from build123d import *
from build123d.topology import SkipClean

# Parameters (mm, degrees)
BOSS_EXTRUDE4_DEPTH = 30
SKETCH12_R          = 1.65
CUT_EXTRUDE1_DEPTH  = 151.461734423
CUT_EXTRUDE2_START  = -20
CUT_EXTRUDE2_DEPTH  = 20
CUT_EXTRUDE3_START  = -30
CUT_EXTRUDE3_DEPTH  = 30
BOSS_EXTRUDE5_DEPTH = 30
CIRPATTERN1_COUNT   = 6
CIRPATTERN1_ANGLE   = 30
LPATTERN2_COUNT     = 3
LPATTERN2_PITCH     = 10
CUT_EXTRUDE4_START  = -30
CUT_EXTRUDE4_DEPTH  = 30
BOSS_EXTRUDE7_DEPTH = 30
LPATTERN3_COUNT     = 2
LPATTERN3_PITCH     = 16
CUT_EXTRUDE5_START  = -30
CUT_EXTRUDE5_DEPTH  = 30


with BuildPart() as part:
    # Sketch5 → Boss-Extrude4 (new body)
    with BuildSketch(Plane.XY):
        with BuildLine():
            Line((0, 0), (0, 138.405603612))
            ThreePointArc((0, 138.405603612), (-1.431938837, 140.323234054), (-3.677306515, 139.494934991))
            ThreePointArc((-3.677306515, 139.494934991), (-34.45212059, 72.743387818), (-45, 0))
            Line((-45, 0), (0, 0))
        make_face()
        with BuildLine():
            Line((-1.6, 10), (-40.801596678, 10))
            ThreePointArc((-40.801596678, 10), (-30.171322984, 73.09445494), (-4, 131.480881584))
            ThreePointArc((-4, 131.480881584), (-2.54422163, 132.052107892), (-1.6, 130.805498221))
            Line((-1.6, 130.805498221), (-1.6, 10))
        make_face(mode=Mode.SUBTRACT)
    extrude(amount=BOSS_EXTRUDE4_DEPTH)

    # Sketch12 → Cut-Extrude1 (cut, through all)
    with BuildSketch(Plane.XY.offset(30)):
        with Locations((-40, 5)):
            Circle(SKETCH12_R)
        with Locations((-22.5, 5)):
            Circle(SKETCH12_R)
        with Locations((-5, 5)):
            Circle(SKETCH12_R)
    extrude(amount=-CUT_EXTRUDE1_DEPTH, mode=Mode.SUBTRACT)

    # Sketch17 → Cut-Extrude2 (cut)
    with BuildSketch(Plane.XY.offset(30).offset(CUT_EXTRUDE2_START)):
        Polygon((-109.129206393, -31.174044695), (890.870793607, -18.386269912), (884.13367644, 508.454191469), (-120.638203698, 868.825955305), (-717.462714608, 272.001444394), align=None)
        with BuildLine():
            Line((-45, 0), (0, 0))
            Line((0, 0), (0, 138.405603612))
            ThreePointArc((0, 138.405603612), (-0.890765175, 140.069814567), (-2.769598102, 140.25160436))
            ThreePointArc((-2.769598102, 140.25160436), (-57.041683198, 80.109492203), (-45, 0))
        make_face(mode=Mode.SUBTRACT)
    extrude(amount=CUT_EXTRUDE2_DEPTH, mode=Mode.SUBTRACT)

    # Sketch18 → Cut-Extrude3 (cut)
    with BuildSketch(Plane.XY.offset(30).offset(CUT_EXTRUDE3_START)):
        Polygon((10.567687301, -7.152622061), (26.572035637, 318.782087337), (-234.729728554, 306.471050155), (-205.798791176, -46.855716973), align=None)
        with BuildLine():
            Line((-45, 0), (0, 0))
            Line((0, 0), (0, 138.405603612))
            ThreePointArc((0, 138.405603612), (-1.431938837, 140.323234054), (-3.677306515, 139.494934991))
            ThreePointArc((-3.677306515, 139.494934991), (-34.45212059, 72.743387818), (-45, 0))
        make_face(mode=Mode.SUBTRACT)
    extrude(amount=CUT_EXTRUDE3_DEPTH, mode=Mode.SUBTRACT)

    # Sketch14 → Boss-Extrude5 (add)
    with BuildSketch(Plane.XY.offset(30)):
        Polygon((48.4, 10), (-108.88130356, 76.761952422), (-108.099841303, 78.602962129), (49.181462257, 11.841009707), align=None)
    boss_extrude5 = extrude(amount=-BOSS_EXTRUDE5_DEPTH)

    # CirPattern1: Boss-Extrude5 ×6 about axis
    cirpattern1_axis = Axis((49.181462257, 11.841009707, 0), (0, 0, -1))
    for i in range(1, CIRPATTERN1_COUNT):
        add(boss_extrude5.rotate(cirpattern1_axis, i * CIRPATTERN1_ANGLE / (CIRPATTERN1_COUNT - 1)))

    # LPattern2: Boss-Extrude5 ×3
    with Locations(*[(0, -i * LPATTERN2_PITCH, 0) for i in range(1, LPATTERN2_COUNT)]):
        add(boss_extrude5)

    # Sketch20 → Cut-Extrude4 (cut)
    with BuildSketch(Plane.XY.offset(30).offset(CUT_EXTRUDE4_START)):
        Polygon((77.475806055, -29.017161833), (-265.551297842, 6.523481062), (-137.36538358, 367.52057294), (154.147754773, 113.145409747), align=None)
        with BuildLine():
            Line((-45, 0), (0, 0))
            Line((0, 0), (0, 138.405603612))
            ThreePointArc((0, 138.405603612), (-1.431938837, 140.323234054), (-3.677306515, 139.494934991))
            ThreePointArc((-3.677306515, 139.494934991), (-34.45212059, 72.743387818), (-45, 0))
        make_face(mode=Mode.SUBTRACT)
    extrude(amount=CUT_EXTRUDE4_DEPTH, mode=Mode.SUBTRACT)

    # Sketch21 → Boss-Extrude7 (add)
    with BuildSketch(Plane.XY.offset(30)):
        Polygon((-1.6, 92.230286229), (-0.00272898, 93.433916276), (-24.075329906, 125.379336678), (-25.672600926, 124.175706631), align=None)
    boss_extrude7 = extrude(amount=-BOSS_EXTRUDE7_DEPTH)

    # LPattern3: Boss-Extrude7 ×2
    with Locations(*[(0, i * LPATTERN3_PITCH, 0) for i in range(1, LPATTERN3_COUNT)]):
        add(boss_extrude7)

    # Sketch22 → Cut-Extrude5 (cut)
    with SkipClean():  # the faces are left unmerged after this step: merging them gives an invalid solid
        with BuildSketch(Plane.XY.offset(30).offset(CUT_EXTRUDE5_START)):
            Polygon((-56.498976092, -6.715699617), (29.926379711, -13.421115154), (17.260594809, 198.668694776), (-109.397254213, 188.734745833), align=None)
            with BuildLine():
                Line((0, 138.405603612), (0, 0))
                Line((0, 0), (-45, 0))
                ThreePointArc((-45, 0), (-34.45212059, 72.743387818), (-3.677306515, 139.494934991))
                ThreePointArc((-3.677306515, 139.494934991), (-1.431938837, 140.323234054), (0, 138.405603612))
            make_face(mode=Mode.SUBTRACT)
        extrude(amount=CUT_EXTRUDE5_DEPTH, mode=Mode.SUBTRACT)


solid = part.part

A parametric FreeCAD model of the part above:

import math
import FreeCAD as App
import Part
import Sketcher
from FreeCAD import Vector
Q = App.Units.Quantity

doc = App.newDocument("Part")
params = doc.addObject("Spreadsheet::Sheet", "Params")
for row, (alias, value) in enumerate([
    ("sketch1_radius", "2 mm"),
    ("sketch1_width", "45 mm"),
    ("pad1_length", "30 mm"),
    ("sketch2_diameter", "3.3 mm"),
    ("sketch3_radius", "2 mm"),
    ("sketch3_width", "45 mm"),
    ("pocket2_length", "20 mm"),
    ("sketch4_radius", "2 mm"),
    ("sketch4_width", "45 mm"),
    ("pocket3_length", "30 mm"),
    ("sketch5_length", "2 mm"),
    ("pad2_length", "30 mm"),
    ("linearpattern_pitch", "10 mm"),
    ("sketch6_radius", "2 mm"),
    ("sketch6_width", "45 mm"),
    ("pocket4_length", "30 mm"),
    ("sketch7_length", "2 mm"),
    ("sketch7_length2", "40 mm"),
    ("pad3_length", "30 mm"),
    ("linearpattern2_pitch", "16 mm"),
    ("sketch8_radius", "2 mm"),
    ("sketch8_width", "45 mm"),
    ("pocket5_length", "30 mm"),
], start=1):
    params.set(f"A{row}", alias)
    params.set(f"B{row}", "=" + value)
    params.setAlias(f"B{row}", alias)

body = doc.addObject("PartDesign::Body", "Body")

sketch1 = doc.addObject("Sketcher::SketchObject", "Sketch")
body.addObject(sketch1)
sketch1.AttachmentSupport = (doc.XY_Plane, [""])
sketch1.MapMode = "FlatFace"
sketch1.addGeometry([
    Part.LineSegment(Vector(0, 0, 0), Vector(0, 138.4, 0)),
    Part.ArcOfCircle(Part.Circle(Vector(-2, 138.4, 0), Vector(0, 0, 1), 2), math.radians(0), math.radians(147)),
    Part.ArcOfCircle(Part.Circle(Vector(211.1, 0, 0), Vector(0, 0, 1), 256.1), math.radians(147), math.radians(180)),
    Part.LineSegment(Vector(-45, 0, 0), Vector(0, 0, 0)),
    Part.LineSegment(Vector(-1.6, 130.8, 0), Vector(-1.6, 10, 0)),
    Part.LineSegment(Vector(-1.6, 10, 0), Vector(-40.8, 10, 0)),
    Part.ArcOfCircle(Part.Circle(Vector(211.1, 0, 0), Vector(0, 0, 1), 252.1), math.radians(149), math.radians(178)),
    Part.ArcOfCircle(Part.Circle(Vector(-2.9, 130.8, 0), Vector(0, 0, 1), 1.3), math.radians(0), math.radians(149)),
], False)
sketch1.addConstraint([
    Sketcher.Constraint("Tangent", 0, 2, 1, 1),
    Sketcher.Constraint("Tangent", 1, 2, 2, 1),
    Sketcher.Constraint("Coincident", 2, 2, 3, 1),
    Sketcher.Constraint("Coincident", 3, 2, 0, 1),
    Sketcher.Constraint("Coincident", 4, 2, 5, 1),
    Sketcher.Constraint("Coincident", 5, 2, 6, 2),
    Sketcher.Constraint("Tangent", 6, 1, 7, 2),
    Sketcher.Constraint("Tangent", 7, 1, 4, 1),
    Sketcher.Constraint("Vertical", 0),
    Sketcher.Constraint("Horizontal", 3),
    Sketcher.Constraint("Vertical", 4),
    Sketcher.Constraint("Horizontal", 5),
    Sketcher.Constraint("Coincident", 3, 2, -1, 1),
    Sketcher.Constraint("Coincident", 6, 3, 2, 3),
    Sketcher.Constraint("PointOnObject", 2, 3, -1),
    Sketcher.Constraint("Radius", 1, Q("2 mm")),
    Sketcher.Constraint("DistanceX", 3, 1, 3, 2, Q("45 mm")),
    Sketcher.Constraint("DistanceY", -1, 1, 4, 2, Q("10 mm")),
    Sketcher.Constraint("DistanceX", 6, 1, -1, 1, Q("4 mm")),
    Sketcher.Constraint("DistanceX", 4, 2, -1, 1, Q("1.6 mm")),
    Sketcher.Constraint("Radius", 2, Q("256.111111 mm")),
    Sketcher.Constraint("Radius", 6, Q("252.111111 mm")),
])
sketch1.setExpression("Constraints[15]", "Params.sketch1_radius")
sketch1.setExpression("Constraints[16]", "Params.sketch1_width")
pad1 = doc.addObject("PartDesign::Pad", "Pad")
body.addObject(pad1)
pad1.Profile = sketch1
pad1.setExpression("Length", "Params.pad1_length")

sketch2 = doc.addObject("Sketcher::SketchObject", "Sketch001")
body.addObject(sketch2)
sketch2.AttachmentSupport = (doc.XY_Plane, [""])
sketch2.MapMode = "FlatFace"
sketch2.AttachmentOffset = App.Placement(Vector(0, 0, 30), App.Rotation())
sketch2.addGeometry([
    Part.Circle(Vector(-40, 5, 0), Vector(0, 0, 1), 1.6),
    Part.Circle(Vector(-22.5, 5, 0), Vector(0, 0, 1), 1.6),
    Part.Circle(Vector(-5, 5, 0), Vector(0, 0, 1), 1.6),
], False)
sketch2.addConstraint([
    Sketcher.Constraint("Equal", 0, 1),
    Sketcher.Constraint("Equal", 1, 2),
    Sketcher.Constraint("Horizontal", 0, 3, 1, 3),
    Sketcher.Constraint("Horizontal", 1, 3, 2, 3),
    Sketcher.Constraint("Diameter", 0, Q("3.3 mm")),
    Sketcher.Constraint("DistanceX", 0, 3, -1, 1, Q("40 mm")),
    Sketcher.Constraint("DistanceY", -1, 1, 0, 3, Q("5 mm")),
    Sketcher.Constraint("DistanceX", 2, 3, -1, 1, Q("5 mm")),
    Sketcher.Constraint("DistanceX", 1, 3, -1, 1, Q("22.5 mm")),
])
sketch2.setExpression("Constraints[4]", "Params.sketch2_diameter")
pocket1 = doc.addObject("PartDesign::Pocket", "Pocket")
body.addObject(pocket1)
pocket1.Profile = sketch2
pocket1.Type = "ThroughAll"

sketch3 = doc.addObject("Sketcher::SketchObject", "Sketch002")
body.addObject(sketch3)
sketch3.AttachmentSupport = (doc.XY_Plane, [""])
sketch3.MapMode = "FlatFace"
sketch3.AttachmentOffset = App.Placement(Vector(0, 0, 10), App.Rotation())
sketch3.addGeometry([
    Part.LineSegment(Vector(-109.129206, -31.174045, 0), Vector(890.870794, -18.38627, 0)),
    Part.LineSegment(Vector(890.870794, -18.38627, 0), Vector(884.133676, 508.454191, 0)),
    Part.LineSegment(Vector(884.133676, 508.454191, 0), Vector(-120.638204, 868.825955, 0)),
    Part.LineSegment(Vector(-120.638204, 868.825955, 0), Vector(-717.462715, 272.001444, 0)),
    Part.LineSegment(Vector(-717.462715, 272.001444, 0), Vector(-109.129206, -31.174045, 0)),
    Part.LineSegment(Vector(0, 0, 0), Vector(-45, 0, 0)),
    Part.ArcOfCircle(Part.Circle(Vector(33.693729, 52.788643, 0), Vector(0, 0, 1), 94.7594), math.radians(112.631266), math.radians(213.854156)),
    Part.ArcOfCircle(Part.Circle(Vector(-2, 138.405604, 0), Vector(0, 0, 1), 2), math.radians(0), math.radians(112.631266)),
    Part.LineSegment(Vector(0, 138.405604, 0), Vector(0, 0, 0)),
], False)
sketch3.addConstraint([
    Sketcher.Constraint("Coincident", 0, 2, 1, 1),
    Sketcher.Constraint("Coincident", 1, 2, 2, 1),
    Sketcher.Constraint("Coincident", 2, 2, 3, 1),
    Sketcher.Constraint("Coincident", 3, 2, 4, 1),
    Sketcher.Constraint("Coincident", 4, 2, 0, 1),
    Sketcher.Constraint("Coincident", 5, 2, 6, 2),
    Sketcher.Constraint("Coincident", 6, 1, 7, 2),
    Sketcher.Constraint("Coincident", 7, 1, 8, 1),
    Sketcher.Constraint("Coincident", 8, 2, 5, 1),
    Sketcher.Constraint("Horizontal", 5),
    Sketcher.Constraint("Vertical", 8),
    Sketcher.Constraint("Coincident", 8, 2, -1, 1),
    Sketcher.Constraint("Radius", 7, Q("2 mm")),
    Sketcher.Constraint("DistanceX", 5, 2, 5, 1, Q("45 mm")),
    Sketcher.Constraint("DistanceY", 4, 2, 2, 2, Q("900 mm")),
    Sketcher.Constraint("DistanceX", 4, 2, 0, 2, Q("1000 mm")),
    Sketcher.Constraint("Radius", 6, Q("94.7594 mm")),
    Sketcher.Constraint("DistanceY", 7, 3, 6, 1, Q("1.846001 mm")),
    Sketcher.Constraint("DistanceY", 7, 1, 6, 1, Q("1.846001 mm")),
    Sketcher.Constraint("DistanceY", 6, 3, 3, 2, Q("219.212801 mm")),
    Sketcher.Constraint("Distance", 0, Q("1000.08176 mm")),
    Sketcher.Constraint("Distance", 4, Q("679.69481 mm")),
    Sketcher.Constraint("DistanceY", 8, 2, 8, 1, Q("138.405604 mm")),
    Sketcher.Constraint("DistanceY", 0, 2, -1, 1, Q("18.38627 mm")),
    Sketcher.Constraint("DistanceY", -1, 1, 1, 2, Q("508.454191 mm")),
    Sketcher.Constraint("DistanceX", 2, 2, 1, 2, Q("1004.77188 mm")),
    Sketcher.Constraint("DistanceX", 3, 2, 2, 2, Q("596.824511 mm")),
    Sketcher.Constraint("DistanceX", 4, 2, 6, 1, Q("106.359608 mm")),
])
sketch3.setExpression("Constraints[12]", "Params.sketch3_radius")
sketch3.setExpression("Constraints[13]", "Params.sketch3_width")
pocket2 = doc.addObject("PartDesign::Pocket", "Pocket001")
body.addObject(pocket2)
pocket2.Profile = sketch3
pocket2.setExpression("Length", "Params.pocket2_length")
pocket2.Reversed = True

sketch4 = doc.addObject("Sketcher::SketchObject", "Sketch003")
body.addObject(sketch4)
sketch4.AttachmentSupport = (doc.XY_Plane, [""])
sketch4.MapMode = "FlatFace"
sketch4.addGeometry([
    Part.LineSegment(Vector(10.6, -7.2, 0), Vector(26.6, 318.8, 0)),
    Part.LineSegment(Vector(26.6, 318.8, 0), Vector(-234.7, 306.5, 0)),
    Part.LineSegment(Vector(-234.7, 306.5, 0), Vector(-205.8, -46.9, 0)),
    Part.LineSegment(Vector(-205.8, -46.9, 0), Vector(10.6, -7.2, 0)),
    Part.LineSegment(Vector(0, 0, 0), Vector(-45, 0, 0)),
    Part.ArcOfCircle(Part.Circle(Vector(211.1, 0, 0), Vector(0, 0, 1), 256.1), math.radians(147), math.radians(180)),
    Part.ArcOfCircle(Part.Circle(Vector(-2, 138.4, 0), Vector(0, 0, 1), 2), math.radians(0), math.radians(147)),
    Part.LineSegment(Vector(0, 138.4, 0), Vector(0, 0, 0)),
], False)
sketch4.addConstraint([
    Sketcher.Constraint("Coincident", 0, 2, 1, 1),
    Sketcher.Constraint("Coincident", 1, 2, 2, 1),
    Sketcher.Constraint("Coincident", 2, 2, 3, 1),
    Sketcher.Constraint("Coincident", 3, 2, 0, 1),
    Sketcher.Constraint("Coincident", 4, 2, 5, 2),
    Sketcher.Constraint("Tangent", 5, 1, 6, 2),
    Sketcher.Constraint("Tangent", 6, 1, 7, 1),
    Sketcher.Constraint("Coincident", 7, 2, 4, 1),
    Sketcher.Constraint("Horizontal", 4),
    Sketcher.Constraint("Vertical", 7),
    Sketcher.Constraint("Coincident", 7, 2, -1, 1),
    Sketcher.Constraint("PointOnObject", 5, 3, -1),
    Sketcher.Constraint("Radius", 6, Q("2 mm")),
    Sketcher.Constraint("DistanceX", 4, 2, 4, 1, Q("45 mm")),
    Sketcher.Constraint("Radius", 5, Q("256.111111 mm")),
    Sketcher.Constraint("DistanceX", 1, 2, -1, 1, Q("234.729729 mm")),
    Sketcher.Constraint("DistanceY", -1, 1, 1, 2, Q("306.47105 mm")),
    Sketcher.Constraint("DistanceX", 2, 2, -1, 1, Q("205.798791 mm")),
    Sketcher.Constraint("DistanceY", 2, 2, 6, 3, Q("185.261321 mm")),
    Sketcher.Constraint("DistanceX", 2, 2, 3, 2, Q("216.366478 mm")),
    Sketcher.Constraint("DistanceX", 3, 2, 0, 2, Q("16.004348 mm")),
    Sketcher.Constraint("DistanceY", 3, 2, 0, 2, Q("325.934709 mm")),
    Sketcher.Constraint("Distance", 1, Q("261.591616 mm")),
])
sketch4.setExpression("Constraints[12]", "Params.sketch4_radius")
sketch4.setExpression("Constraints[13]", "Params.sketch4_width")
pocket3 = doc.addObject("PartDesign::Pocket", "Pocket002")
body.addObject(pocket3)
pocket3.Profile = sketch4
pocket3.setExpression("Length", "Params.pocket3_length")
pocket3.Reversed = True

sketch5 = doc.addObject("Sketcher::SketchObject", "Sketch004")
body.addObject(sketch5)
sketch5.AttachmentSupport = (doc.XY_Plane, [""])
sketch5.MapMode = "FlatFace"
sketch5.AttachmentOffset = App.Placement(Vector(0, 0, 30), App.Rotation())
sketch5.addGeometry([
    Part.LineSegment(Vector(-108.9, 76.8, 0), Vector(48.4, 10, 0)),
    Part.LineSegment(Vector(48.4, 10, 0), Vector(49.2, 11.8, 0)),
    Part.LineSegment(Vector(49.2, 11.8, 0), Vector(-108.1, 78.6, 0)),
    Part.LineSegment(Vector(-108.1, 78.6, 0), Vector(-108.9, 76.8, 0)),
], False)
sketch5.addConstraint([
    Sketcher.Constraint("Coincident", 0, 2, 1, 1),
    Sketcher.Constraint("Coincident", 1, 2, 2, 1),
    Sketcher.Constraint("Coincident", 2, 2, 3, 1),
    Sketcher.Constraint("Coincident", 3, 2, 0, 1),
    Sketcher.Constraint("Perpendicular", 0, 1),
    Sketcher.Constraint("Perpendicular", 1, 2),
    Sketcher.Constraint("Perpendicular", 2, 3),
    Sketcher.Constraint("Angle", 0, Q("-23 deg")),
    Sketcher.Constraint("Distance", 1, Q("2 mm")),
    Sketcher.Constraint("DistanceY", -1, 1, 0, 2, Q("10 mm")),
    Sketcher.Constraint("DistanceX", -1, 1, 0, 2, Q("48.4 mm")),
    Sketcher.Constraint("DistanceX", 2, 2, -1, 1, Q("108.099841 mm")),
])
sketch5.setExpression("Constraints[8]", "Params.sketch5_length")
pad2 = doc.addObject("PartDesign::Pad", "Pad001")
body.addObject(pad2)
pad2.Profile = sketch5
pad2.setExpression("Length", "Params.pad2_length")
pad2.Reversed = True
doc.recompute()

datumline = doc.addObject("PartDesign::Line", "DatumLine")
body.addObject(datumline)
datumline.Placement = App.Placement(Vector(49.181462, 11.84101, 0), App.Rotation(Vector(0, 0, 1), Vector(0, 0, -1)))
polarpattern = doc.addObject("PartDesign::PolarPattern", "PolarPattern")
body.addObject(polarpattern)
polarpattern.Originals = [pad2]
polarpattern.Axis = (datumline, [""])
polarpattern.Angle = 30
polarpattern.Occurrences = 6
body.Tip = polarpattern
doc.recompute()

linearpattern = doc.addObject("PartDesign::LinearPattern", "LinearPattern")
body.addObject(linearpattern)
linearpattern.Originals = [pad2]
linearpattern.Direction = (doc.Y_Axis, [""])
linearpattern.Mode = "offset"
linearpattern.setExpression("Offset", "Params.linearpattern_pitch")
linearpattern.Occurrences = 3
linearpattern.Reversed = True
body.Tip = linearpattern

sketch6 = doc.addObject("Sketcher::SketchObject", "Sketch005")
body.addObject(sketch6)
sketch6.AttachmentSupport = (doc.XY_Plane, [""])
sketch6.MapMode = "FlatFace"
sketch6.addGeometry([
    Part.LineSegment(Vector(-265.6, 6.5, 0), Vector(77.5, -29, 0)),
    Part.LineSegment(Vector(77.5, -29, 0), Vector(154.1, 113.1, 0)),
    Part.LineSegment(Vector(154.1, 113.1, 0), Vector(-137.4, 367.5, 0)),
    Part.LineSegment(Vector(-137.4, 367.5, 0), Vector(-265.6, 6.5, 0)),
    Part.ArcOfCircle(Part.Circle(Vector(211.1, 0, 0), Vector(0, 0, 1), 256.1), math.radians(147), math.radians(180)),
    Part.ArcOfCircle(Part.Circle(Vector(-2, 138.4, 0), Vector(0, 0, 1), 2), math.radians(0), math.radians(147)),
    Part.LineSegment(Vector(0, 138.4, 0), Vector(0, 0, 0)),
    Part.LineSegment(Vector(0, 0, 0), Vector(-45, 0, 0)),
], False)
sketch6.addConstraint([
    Sketcher.Constraint("Coincident", 0, 2, 1, 1),
    Sketcher.Constraint("Coincident", 1, 2, 2, 1),
    Sketcher.Constraint("Coincident", 2, 2, 3, 1),
    Sketcher.Constraint("Coincident", 3, 2, 0, 1),
    Sketcher.Constraint("Tangent", 4, 1, 5, 2),
    Sketcher.Constraint("Tangent", 5, 1, 6, 1),
    Sketcher.Constraint("Coincident", 6, 2, 7, 1),
    Sketcher.Constraint("Coincident", 7, 2, 4, 2),
    Sketcher.Constraint("Vertical", 6),
    Sketcher.Constraint("Horizontal", 7),
    Sketcher.Constraint("Coincident", 6, 2, -1, 1),
    Sketcher.Constraint("PointOnObject", 4, 3, -1),
    Sketcher.Constraint("Radius", 5, Q("2 mm")),
    Sketcher.Constraint("DistanceX", 7, 2, 7, 1, Q("45 mm")),
    Sketcher.Constraint("Radius", 4, Q("256.111111 mm")),
    Sketcher.Constraint("Distance", 0, Q("344.863352 mm")),
    Sketcher.Constraint("Distance", 1, Q("161.520229 mm")),
    Sketcher.Constraint("Distance", 2, Q("386.893569 mm")),
    Sketcher.Constraint("DistanceY", 0, 2, -1, 1, Q("29.017162 mm")),
    Sketcher.Constraint("DistanceY", -1, 1, 1, 2, Q("113.14541 mm")),
    Sketcher.Constraint("DistanceY", -1, 1, 3, 2, Q("6.523481 mm")),
    Sketcher.Constraint("DistanceY", 5, 3, 2, 2, Q("229.114969 mm")),
    Sketcher.Constraint("DistanceX", 3, 2, 4, 3, Q("476.662409 mm")),
])
sketch6.setExpression("Constraints[12]", "Params.sketch6_radius")
sketch6.setExpression("Constraints[13]", "Params.sketch6_width")
pocket4 = doc.addObject("PartDesign::Pocket", "Pocket003")
body.addObject(pocket4)
pocket4.Profile = sketch6
pocket4.setExpression("Length", "Params.pocket4_length")
pocket4.Reversed = True

sketch7 = doc.addObject("Sketcher::SketchObject", "Sketch006")
body.addObject(sketch7)
sketch7.AttachmentSupport = (doc.XY_Plane, [""])
sketch7.MapMode = "FlatFace"
sketch7.AttachmentOffset = App.Placement(Vector(0, 0, 30), App.Rotation())
sketch7.addGeometry([
    Part.LineSegment(Vector(-1.6, 92.2, 0), Vector(0, 93.4, 0)),
    Part.LineSegment(Vector(0, 93.4, 0), Vector(-24.1, 125.4, 0)),
    Part.LineSegment(Vector(-24.1, 125.4, 0), Vector(-25.7, 124.2, 0)),
    Part.LineSegment(Vector(-25.7, 124.2, 0), Vector(-1.6, 92.2, 0)),
], False)
sketch7.addConstraint([
    Sketcher.Constraint("Coincident", 0, 2, 1, 1),
    Sketcher.Constraint("Coincident", 1, 2, 2, 1),
    Sketcher.Constraint("Coincident", 2, 2, 3, 1),
    Sketcher.Constraint("Coincident", 3, 2, 0, 1),
    Sketcher.Constraint("Perpendicular", 0, 1),
    Sketcher.Constraint("Perpendicular", 1, 2),
    Sketcher.Constraint("Perpendicular", 2, 3),
    Sketcher.Constraint("Angle", 0, Q("37 deg")),
    Sketcher.Constraint("Distance", 0, Q("2 mm")),
    Sketcher.Constraint("Distance", 1, Q("40 mm")),
    Sketcher.Constraint("DistanceX", 3, 2, -1, 1, Q("1.6 mm")),
    Sketcher.Constraint("DistanceY", -1, 1, 0, 2, Q("93.433916 mm")),
])
sketch7.setExpression("Constraints[8]", "Params.sketch7_length")
sketch7.setExpression("Constraints[9]", "Params.sketch7_length2")
pad3 = doc.addObject("PartDesign::Pad", "Pad002")
body.addObject(pad3)
pad3.Profile = sketch7
pad3.setExpression("Length", "Params.pad3_length")
pad3.Reversed = True
doc.recompute()

linearpattern2 = doc.addObject("PartDesign::LinearPattern", "LinearPattern001")
body.addObject(linearpattern2)
linearpattern2.Originals = [pad3]
linearpattern2.Direction = (doc.Y_Axis, [""])
linearpattern2.Mode = "offset"
linearpattern2.setExpression("Offset", "Params.linearpattern2_pitch")
linearpattern2.Occurrences = 2
body.Tip = linearpattern2

sketch8 = doc.addObject("Sketcher::SketchObject", "Sketch007")
body.addObject(sketch8)
sketch8.AttachmentSupport = (doc.XY_Plane, [""])
sketch8.MapMode = "FlatFace"
sketch8.addGeometry([
    Part.LineSegment(Vector(-56.5, -6.7, 0), Vector(29.9, -13.4, 0)),
    Part.LineSegment(Vector(29.9, -13.4, 0), Vector(17.3, 198.7, 0)),
    Part.LineSegment(Vector(17.3, 198.7, 0), Vector(-109.4, 188.7, 0)),
    Part.LineSegment(Vector(-109.4, 188.7, 0), Vector(-56.5, -6.7, 0)),
    Part.ArcOfCircle(Part.Circle(Vector(-2, 138.4, 0), Vector(0, 0, 1), 2), math.radians(0), math.radians(147)),
    Part.LineSegment(Vector(0, 138.4, 0), Vector(0, 0, 0)),
    Part.LineSegment(Vector(0, 0, 0), Vector(-45, 0, 0)),
    Part.ArcOfCircle(Part.Circle(Vector(211.1, 0, 0), Vector(0, 0, 1), 256.1), math.radians(147), math.radians(180)),
], False)
sketch8.addConstraint([
    Sketcher.Constraint("Coincident", 0, 2, 1, 1),
    Sketcher.Constraint("Coincident", 1, 2, 2, 1),
    Sketcher.Constraint("Coincident", 2, 2, 3, 1),
    Sketcher.Constraint("Coincident", 3, 2, 0, 1),
    Sketcher.Constraint("Tangent", 4, 1, 5, 1),
    Sketcher.Constraint("Coincident", 5, 2, 6, 1),
    Sketcher.Constraint("Coincident", 6, 2, 7, 2),
    Sketcher.Constraint("Tangent", 7, 1, 4, 2),
    Sketcher.Constraint("Vertical", 5),
    Sketcher.Constraint("Horizontal", 6),
    Sketcher.Constraint("Coincident", 5, 2, -1, 1),
    Sketcher.Constraint("PointOnObject", 7, 3, -1),
    Sketcher.Constraint("Radius", 4, Q("2 mm")),
    Sketcher.Constraint("DistanceX", 6, 2, 6, 1, Q("45 mm")),
    Sketcher.Constraint("Radius", 7, Q("256.111111 mm")),
    Sketcher.Constraint("DistanceY", 3, 2, -1, 1, Q("6.7157 mm")),
    Sketcher.Constraint("DistanceX", 7, 1, 1, 2, Q("20.937901 mm")),
    Sketcher.Constraint("Distance", 0, Q("86.685089 mm")),
    Sketcher.Constraint("Distance", 2, Q("127.046818 mm")),
    Sketcher.Constraint("DistanceX", -1, 1, 0, 2, Q("29.92638 mm")),
    Sketcher.Constraint("DistanceY", 0, 2, 4, 3, Q("151.826719 mm")),
    Sketcher.Constraint("DistanceY", 4, 3, 1, 2, Q("60.263091 mm")),
    Sketcher.Constraint("DistanceX", 2, 2, 1, 2, Q("126.657849 mm")),
])
sketch8.setExpression("Constraints[12]", "Params.sketch8_radius")
sketch8.setExpression("Constraints[13]", "Params.sketch8_width")
pocket5 = doc.addObject("PartDesign::Pocket", "Pocket004")
body.addObject(pocket5)
pocket5.Profile = sketch8
pocket5.setExpression("Length", "Params.pocket5_length")
pocket5.Reversed = True

doc.recompute()
